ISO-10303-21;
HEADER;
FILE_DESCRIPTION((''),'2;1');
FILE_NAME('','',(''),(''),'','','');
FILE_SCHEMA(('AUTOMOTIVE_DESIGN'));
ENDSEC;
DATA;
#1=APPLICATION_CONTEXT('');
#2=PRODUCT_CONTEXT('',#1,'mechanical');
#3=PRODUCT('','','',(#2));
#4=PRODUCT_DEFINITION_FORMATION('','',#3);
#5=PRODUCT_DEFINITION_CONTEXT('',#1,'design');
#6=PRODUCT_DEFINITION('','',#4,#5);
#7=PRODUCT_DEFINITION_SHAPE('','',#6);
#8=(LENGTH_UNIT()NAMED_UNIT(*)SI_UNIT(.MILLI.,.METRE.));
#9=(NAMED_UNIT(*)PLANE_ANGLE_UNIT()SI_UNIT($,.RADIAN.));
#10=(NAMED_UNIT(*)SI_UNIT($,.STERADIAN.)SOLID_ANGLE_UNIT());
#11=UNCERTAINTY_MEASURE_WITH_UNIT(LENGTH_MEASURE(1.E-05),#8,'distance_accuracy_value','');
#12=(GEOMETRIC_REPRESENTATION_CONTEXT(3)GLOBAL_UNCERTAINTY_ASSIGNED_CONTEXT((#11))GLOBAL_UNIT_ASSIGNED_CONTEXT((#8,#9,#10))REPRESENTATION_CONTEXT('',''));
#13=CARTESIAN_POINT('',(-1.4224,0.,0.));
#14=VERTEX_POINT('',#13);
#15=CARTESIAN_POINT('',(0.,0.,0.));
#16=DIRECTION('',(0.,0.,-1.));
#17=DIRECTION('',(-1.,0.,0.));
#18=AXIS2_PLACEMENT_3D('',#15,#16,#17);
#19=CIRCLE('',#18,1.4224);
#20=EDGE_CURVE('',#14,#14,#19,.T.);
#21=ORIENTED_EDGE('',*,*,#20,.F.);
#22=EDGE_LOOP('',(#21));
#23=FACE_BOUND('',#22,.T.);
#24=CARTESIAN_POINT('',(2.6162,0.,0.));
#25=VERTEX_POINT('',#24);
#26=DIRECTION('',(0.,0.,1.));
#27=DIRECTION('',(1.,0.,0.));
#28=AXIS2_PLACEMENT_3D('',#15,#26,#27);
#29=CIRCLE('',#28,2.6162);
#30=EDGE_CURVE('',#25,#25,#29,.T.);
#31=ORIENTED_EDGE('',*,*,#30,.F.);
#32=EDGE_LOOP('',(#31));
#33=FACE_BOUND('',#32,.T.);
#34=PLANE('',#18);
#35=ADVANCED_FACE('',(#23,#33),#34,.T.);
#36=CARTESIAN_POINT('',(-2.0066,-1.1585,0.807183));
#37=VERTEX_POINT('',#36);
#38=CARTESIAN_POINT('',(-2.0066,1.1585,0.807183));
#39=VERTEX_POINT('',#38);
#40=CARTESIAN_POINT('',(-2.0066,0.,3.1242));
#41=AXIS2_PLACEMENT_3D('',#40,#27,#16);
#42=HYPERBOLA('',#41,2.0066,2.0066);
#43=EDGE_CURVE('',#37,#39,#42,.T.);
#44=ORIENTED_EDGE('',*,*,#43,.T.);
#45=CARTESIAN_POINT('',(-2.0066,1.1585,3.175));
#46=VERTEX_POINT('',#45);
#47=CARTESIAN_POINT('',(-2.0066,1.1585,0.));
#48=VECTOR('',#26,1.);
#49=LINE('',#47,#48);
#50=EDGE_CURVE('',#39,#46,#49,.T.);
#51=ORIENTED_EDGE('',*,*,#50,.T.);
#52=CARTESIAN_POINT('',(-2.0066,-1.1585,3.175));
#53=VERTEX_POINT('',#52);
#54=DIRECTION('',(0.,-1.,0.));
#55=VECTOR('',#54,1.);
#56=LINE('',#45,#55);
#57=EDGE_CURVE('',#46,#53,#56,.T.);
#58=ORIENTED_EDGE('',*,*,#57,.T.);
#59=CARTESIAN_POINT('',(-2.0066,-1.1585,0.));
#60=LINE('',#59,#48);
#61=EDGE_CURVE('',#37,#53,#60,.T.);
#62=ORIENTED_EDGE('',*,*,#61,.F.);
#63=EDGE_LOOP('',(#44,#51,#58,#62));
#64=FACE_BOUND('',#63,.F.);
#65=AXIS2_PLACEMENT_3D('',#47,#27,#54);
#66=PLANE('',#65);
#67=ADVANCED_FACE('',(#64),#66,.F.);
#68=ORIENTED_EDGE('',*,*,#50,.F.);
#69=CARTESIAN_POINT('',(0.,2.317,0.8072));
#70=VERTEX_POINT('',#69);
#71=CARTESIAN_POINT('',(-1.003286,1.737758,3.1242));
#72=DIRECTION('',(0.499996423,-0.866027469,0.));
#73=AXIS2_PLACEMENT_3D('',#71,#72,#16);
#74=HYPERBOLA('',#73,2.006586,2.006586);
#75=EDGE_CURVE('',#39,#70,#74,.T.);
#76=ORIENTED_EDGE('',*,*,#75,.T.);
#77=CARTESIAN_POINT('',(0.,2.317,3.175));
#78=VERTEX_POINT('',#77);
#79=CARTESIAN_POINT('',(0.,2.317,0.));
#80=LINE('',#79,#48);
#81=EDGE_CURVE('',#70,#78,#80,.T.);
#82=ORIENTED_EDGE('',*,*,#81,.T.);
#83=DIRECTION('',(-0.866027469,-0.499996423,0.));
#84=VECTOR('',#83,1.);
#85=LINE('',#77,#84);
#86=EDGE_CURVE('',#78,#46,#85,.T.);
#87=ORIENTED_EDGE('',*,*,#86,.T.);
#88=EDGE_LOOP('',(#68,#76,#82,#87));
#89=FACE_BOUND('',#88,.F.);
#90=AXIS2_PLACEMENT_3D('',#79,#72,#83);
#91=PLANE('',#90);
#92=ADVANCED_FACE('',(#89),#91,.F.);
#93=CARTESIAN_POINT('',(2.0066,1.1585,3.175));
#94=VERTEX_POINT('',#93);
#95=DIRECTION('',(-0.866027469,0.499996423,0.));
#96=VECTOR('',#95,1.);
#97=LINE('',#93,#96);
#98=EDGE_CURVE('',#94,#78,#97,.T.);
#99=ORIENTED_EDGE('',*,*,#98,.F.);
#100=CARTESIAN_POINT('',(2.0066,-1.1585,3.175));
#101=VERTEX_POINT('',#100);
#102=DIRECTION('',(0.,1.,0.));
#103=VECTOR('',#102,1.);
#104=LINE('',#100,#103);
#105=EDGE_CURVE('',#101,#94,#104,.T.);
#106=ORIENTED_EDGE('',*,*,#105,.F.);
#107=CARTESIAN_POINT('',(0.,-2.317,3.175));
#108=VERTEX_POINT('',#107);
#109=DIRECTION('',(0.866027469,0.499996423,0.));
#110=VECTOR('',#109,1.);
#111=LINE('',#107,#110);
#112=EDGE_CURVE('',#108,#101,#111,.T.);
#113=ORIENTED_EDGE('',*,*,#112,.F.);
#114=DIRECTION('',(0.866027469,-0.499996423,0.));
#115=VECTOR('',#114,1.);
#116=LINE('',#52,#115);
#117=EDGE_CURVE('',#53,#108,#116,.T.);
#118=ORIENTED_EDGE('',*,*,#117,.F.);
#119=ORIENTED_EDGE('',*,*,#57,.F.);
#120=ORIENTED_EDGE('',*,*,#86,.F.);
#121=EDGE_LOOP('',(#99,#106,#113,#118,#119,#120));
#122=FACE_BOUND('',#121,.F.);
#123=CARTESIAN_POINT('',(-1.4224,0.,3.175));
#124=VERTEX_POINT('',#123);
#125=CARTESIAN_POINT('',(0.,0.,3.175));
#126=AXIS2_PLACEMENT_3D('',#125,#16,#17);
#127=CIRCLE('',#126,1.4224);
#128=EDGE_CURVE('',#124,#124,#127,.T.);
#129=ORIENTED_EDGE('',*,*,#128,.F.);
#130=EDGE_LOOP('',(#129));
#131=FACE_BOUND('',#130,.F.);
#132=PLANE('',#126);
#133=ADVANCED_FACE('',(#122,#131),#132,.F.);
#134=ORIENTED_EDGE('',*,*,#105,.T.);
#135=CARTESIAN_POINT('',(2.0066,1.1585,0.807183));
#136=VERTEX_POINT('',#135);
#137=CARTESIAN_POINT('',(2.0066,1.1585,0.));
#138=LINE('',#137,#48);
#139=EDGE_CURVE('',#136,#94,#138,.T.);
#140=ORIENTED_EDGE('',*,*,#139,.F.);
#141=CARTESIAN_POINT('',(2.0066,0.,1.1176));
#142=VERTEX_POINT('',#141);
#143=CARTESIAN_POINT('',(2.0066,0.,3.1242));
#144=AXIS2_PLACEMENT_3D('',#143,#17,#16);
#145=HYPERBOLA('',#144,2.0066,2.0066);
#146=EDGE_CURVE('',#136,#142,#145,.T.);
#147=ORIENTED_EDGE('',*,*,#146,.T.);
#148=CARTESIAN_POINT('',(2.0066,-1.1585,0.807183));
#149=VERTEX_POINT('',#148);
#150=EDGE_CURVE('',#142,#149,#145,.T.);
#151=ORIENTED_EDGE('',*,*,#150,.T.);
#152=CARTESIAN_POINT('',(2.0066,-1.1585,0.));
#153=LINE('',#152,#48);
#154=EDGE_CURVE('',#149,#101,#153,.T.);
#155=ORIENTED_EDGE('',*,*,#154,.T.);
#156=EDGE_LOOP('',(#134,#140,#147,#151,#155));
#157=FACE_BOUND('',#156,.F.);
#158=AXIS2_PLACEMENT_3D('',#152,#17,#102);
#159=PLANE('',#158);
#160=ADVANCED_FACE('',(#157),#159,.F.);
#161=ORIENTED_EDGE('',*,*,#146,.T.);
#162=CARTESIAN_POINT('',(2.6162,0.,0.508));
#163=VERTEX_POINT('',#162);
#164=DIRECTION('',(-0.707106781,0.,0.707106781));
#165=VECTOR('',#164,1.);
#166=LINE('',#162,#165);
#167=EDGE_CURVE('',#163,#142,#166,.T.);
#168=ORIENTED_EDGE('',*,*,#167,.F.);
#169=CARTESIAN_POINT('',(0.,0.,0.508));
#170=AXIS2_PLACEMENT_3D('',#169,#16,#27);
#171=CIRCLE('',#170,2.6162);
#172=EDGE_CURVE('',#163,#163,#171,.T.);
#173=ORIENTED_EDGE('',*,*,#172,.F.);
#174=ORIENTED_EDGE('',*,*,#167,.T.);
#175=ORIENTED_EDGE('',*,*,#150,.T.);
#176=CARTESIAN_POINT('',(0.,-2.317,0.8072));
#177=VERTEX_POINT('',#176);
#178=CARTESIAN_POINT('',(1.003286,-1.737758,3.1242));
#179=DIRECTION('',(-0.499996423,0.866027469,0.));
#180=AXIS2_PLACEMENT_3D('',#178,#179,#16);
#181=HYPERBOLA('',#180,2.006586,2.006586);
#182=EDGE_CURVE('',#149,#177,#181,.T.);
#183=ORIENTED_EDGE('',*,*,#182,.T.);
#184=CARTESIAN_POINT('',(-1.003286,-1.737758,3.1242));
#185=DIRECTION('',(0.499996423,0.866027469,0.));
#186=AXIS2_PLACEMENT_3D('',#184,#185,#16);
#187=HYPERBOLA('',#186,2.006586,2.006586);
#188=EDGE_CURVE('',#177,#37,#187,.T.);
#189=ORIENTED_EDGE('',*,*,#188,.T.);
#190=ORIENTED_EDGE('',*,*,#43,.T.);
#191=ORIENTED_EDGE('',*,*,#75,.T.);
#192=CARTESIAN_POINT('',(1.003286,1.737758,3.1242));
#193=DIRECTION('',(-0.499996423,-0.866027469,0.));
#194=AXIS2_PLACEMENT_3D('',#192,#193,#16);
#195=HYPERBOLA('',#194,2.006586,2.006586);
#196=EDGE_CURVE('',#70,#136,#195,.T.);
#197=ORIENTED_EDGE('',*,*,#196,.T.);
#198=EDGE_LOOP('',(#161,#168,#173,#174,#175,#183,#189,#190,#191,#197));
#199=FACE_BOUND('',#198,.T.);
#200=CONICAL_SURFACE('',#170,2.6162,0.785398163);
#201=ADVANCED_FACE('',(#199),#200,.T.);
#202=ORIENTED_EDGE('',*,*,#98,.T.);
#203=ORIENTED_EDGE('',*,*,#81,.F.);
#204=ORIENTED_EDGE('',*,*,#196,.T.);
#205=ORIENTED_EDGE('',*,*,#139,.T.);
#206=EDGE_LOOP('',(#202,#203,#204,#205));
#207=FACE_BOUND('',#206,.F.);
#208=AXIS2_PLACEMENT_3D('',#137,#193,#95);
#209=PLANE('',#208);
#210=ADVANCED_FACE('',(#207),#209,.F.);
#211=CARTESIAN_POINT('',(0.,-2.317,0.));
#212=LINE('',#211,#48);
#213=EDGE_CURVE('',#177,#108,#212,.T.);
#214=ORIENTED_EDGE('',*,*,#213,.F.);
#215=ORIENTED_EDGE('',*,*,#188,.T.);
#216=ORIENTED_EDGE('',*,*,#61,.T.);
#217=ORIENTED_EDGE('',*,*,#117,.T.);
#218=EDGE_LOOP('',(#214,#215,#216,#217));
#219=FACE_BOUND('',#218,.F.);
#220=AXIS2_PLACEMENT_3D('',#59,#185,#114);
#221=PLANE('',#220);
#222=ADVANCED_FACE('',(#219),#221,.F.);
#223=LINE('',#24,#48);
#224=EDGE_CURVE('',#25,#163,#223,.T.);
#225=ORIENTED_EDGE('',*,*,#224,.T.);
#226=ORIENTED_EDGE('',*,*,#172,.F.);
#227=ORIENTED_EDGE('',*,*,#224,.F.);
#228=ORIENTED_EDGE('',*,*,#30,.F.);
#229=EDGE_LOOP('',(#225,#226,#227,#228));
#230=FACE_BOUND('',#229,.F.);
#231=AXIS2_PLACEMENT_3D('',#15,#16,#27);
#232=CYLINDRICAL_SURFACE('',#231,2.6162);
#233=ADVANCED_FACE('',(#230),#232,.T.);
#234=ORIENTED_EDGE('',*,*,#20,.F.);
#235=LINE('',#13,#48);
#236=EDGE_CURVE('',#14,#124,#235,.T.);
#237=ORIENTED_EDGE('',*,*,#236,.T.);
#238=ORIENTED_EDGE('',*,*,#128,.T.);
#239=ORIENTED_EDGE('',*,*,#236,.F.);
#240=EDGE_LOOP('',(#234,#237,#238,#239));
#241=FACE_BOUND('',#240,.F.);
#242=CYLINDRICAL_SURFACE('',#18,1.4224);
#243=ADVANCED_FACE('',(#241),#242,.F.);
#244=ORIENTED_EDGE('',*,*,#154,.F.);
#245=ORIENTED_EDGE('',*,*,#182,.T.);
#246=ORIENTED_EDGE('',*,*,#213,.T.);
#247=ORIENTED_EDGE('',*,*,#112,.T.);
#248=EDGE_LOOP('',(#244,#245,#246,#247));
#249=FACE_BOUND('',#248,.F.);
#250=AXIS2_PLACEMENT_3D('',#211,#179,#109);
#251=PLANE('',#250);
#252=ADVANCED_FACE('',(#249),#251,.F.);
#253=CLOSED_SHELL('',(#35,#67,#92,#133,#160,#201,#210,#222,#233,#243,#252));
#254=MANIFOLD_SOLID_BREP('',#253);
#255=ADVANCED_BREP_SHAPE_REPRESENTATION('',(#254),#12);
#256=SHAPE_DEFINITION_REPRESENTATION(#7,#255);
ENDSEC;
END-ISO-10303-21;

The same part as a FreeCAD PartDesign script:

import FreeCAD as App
import Part
import Sketcher

V = App.Vector
Q = App.Units.Quantity

doc = App.newDocument("Part")
params = doc.addObject("Spreadsheet::Sheet", "Params")
for row, (alias, value) in enumerate([
    ("sketch1_diameter", "0.206 in"),
    ("pad1_length", "0.02 in"),
    ("sketch2_diameter", "0.206 in"),
    ("pad2_length", "0.1 in"),
    ("pad2_taper", "-45 deg"),
    ("pad3_length", "0.125 in"),
    ("sketch4_diameter", "0.112 in"),
], start=1):
    params.set(f"A{row}", alias)
    params.set(f"B{row}", "=" + value)
    params.setAlias(f"B{row}", alias)

body = doc.addObject("PartDesign::Body", "Body")

sketch1 = body.newObject("Sketcher::SketchObject", "Sketch")
sketch1.AttachmentSupport = (doc.getObject("XY_Plane"), [""])
sketch1.MapMode = "FlatFace"
sketch1.addGeometry(Part.Circle(V(0, 0, 0), V(0, 0, 1), 2.6), False)
sketch1.addConstraint([
    Sketcher.Constraint("Coincident", 0, 3, -1, 1),
    Sketcher.Constraint("Diameter", 0, Q("0.206 in")),
])
sketch1.setExpression("Constraints[1]", "Params.sketch1_diameter")
pad1 = body.newObject("PartDesign::Pad", "Pad")
pad1.Profile = sketch1
pad1.setExpression("Length", "Params.pad1_length")

sketch2 = body.newObject("Sketcher::SketchObject", "Sketch001")
sketch2.AttachmentSupport = (doc.getObject("XY_Plane"), [""])
sketch2.MapMode = "FlatFace"
sketch2.AttachmentOffset = App.Placement(V(0, 0, 0.02 * 25.4), App.Rotation())
sketch2.addGeometry(Part.Circle(V(0, 0, 0), V(0, 0, 1), 2.6), False)
sketch2.addConstraint([
    Sketcher.Constraint("Coincident", 0, 3, -1, 1),
    Sketcher.Constraint("Diameter", 0, Q("0.206 in")),
])
sketch2.setExpression("Constraints[1]", "Params.sketch2_diameter")
pad2 = body.newObject("PartDesign::Pad", "Pad001")
pad2.Profile = sketch2
pad2.setExpression("Length", "Params.pad2_length")
pad2.setExpression("TaperAngle", "Params.pad2_taper")

sketch3 = body.newObject("Sketcher::SketchObject", "Sketch002")
sketch3.AttachmentSupport = (doc.getObject("XY_Plane"), [""])
sketch3.MapMode = "FlatFace"
sketch3.addGeometry([
    Part.LineSegment(V(0, 2.3, 0), V(2, 1.2, 0)),
    Part.LineSegment(V(2, 1.2, 0), V(2, -1.2, 0)),
    Part.LineSegment(V(2, -1.2, 0), V(0, -2.3, 0)),
    Part.LineSegment(V(0, -2.3, 0), V(-2, -1.2, 0)),
    Part.LineSegment(V(-2, -1.2, 0), V(-2, 1.2, 0)),
    Part.LineSegment(V(-2, 1.2, 0), V(0, 2.3, 0)),
], False)
sketch3.addConstraint([
    Sketcher.Constraint("Coincident", 0, 2, 1, 1),
    Sketcher.Constraint("Coincident", 1, 2, 2, 1),
    Sketcher.Constraint("Coincident", 2, 2, 3, 1),
    Sketcher.Constraint("Coincident", 3, 2, 4, 1),
    Sketcher.Constraint("Coincident", 4, 2, 5, 1),
    Sketcher.Constraint("Coincident", 5, 2, 0, 1),
    Sketcher.Constraint("Vertical", 1),
    Sketcher.Constraint("Vertical", 4),
    Sketcher.Constraint("Symmetric", 0, 2, 3, 2, -1, 1),
    Sketcher.Constraint("Symmetric", 2, 2, 5, 2, -1, 1),
    Sketcher.Constraint("PointOnObject", 2, 2, -2),
    Sketcher.Constraint("Parallel", 2, 5),
    Sketcher.Constraint("Horizontal", 1, 2, 3, 2),
    Sketcher.Constraint("Angle", 0, Q("-29.9998 deg")),
    Sketcher.Constraint("DistanceX", 3, 2, 1, 2, Q("0.158 in")),
    Sketcher.Constraint("DistanceY", 1, 2, 1, 1, 2.317),
])
pad3 = body.newObject("PartDesign::Pad", "Pad002")
pad3.Profile = sketch3
pad3.setExpression("Length", "Params.pad3_length")

sketch4 = body.newObject("Sketcher::SketchObject", "Sketch003")
sketch4.AttachmentSupport = (doc.getObject("XY_Plane"), [""])
sketch4.MapMode = "FlatFace"
sketch4.addGeometry(Part.Circle(V(0, 0, 0), V(0, 0, 1), 1.4), False)
sketch4.addConstraint([
    Sketcher.Constraint("Coincident", 0, 3, -1, 1),
    Sketcher.Constraint("Diameter", 0, Q("0.112 in")),
])
sketch4.setExpression("Constraints[1]", "Params.sketch4_diameter")
pocket1 = body.newObject("PartDesign::Pocket", "Pocket")
pocket1.Profile = sketch4
pocket1.Type = "ThroughAll"
pocket1.Reversed = True

doc.recompute()
